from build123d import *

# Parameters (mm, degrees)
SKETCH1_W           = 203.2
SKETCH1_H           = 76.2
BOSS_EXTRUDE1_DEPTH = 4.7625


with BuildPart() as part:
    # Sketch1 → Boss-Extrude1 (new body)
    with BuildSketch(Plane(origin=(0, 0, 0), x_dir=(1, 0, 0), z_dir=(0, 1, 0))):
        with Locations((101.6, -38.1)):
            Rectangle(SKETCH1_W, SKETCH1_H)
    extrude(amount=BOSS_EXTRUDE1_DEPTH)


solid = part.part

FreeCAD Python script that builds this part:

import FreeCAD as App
import Part
import Sketcher

V = App.Vector
Q = App.Units.Quantity


def add_polygon(sketch, points):
    """Adds a closed chain of lines whose ends are joined by coincident constraints."""
    first, n = sketch.GeometryCount, len(points)
    for a, b in zip(points, points[1:] + points[:1]):
        sketch.addGeometry(Part.LineSegment(App.Vector(*a, 0), App.Vector(*b, 0)), False)
    for i in range(n):
        sketch.addConstraint(Sketcher.Constraint("Coincident", first + i, 2, first + (i + 1) % n, 1))

doc = App.newDocument("Part")
params = doc.addObject("Spreadsheet::Sheet", "Params")
for row, (alias, value) in enumerate([
    ("sketch1_width", "8 in"),
    ("sketch1_height", "3 in"),
    ("pad1_length", "0.1875 in"),
], start=1):
    params.set(f"A{row}", alias)
    params.set(f"B{row}", "=" + value)
    params.setAlias(f"B{row}", alias)

body = doc.addObject("PartDesign::Body", "Body")

# Sketch on XZ plane
sketch1 = doc.addObject("Sketcher::SketchObject", "Sketch")
body.addObject(sketch1)
sketch1.AttachmentSupport = (doc.XZ_Plane, [""])
sketch1.MapMode = "FlatFace"
add_polygon(sketch1, [(0, 0), (0, 76.2), (203.2, 76.2), (203.2, 0)])  # lines 0-3
sketch1.addConstraint(Sketcher.Constraint("Vertical", 0))
sketch1.addConstraint(Sketcher.Constraint("Horizontal", 1))
sketch1.addConstraint(Sketcher.Constraint("Vertical", 2))
sketch1.addConstraint(Sketcher.Constraint("Horizontal", 3))
sketch1.addConstraint(Sketcher.Constraint("Coincident", 3, 2, -1, 1))
sketch1.addConstraint(Sketcher.Constraint("DistanceX", 1, 1, 1, 2, Q("8 in")))
sketch1.addConstraint(Sketcher.Constraint("DistanceY", 0, 1, 0, 2, Q("3 in")))
sketch1.setExpression("Constraints[9]", "Params.sketch1_width")
sketch1.setExpression("Constraints[10]", "Params.sketch1_height")
pad1 = doc.addObject("PartDesign::Pad", "Pad")
body.addObject(pad1)
pad1.Profile = sketch1
pad1.setExpression("Length", "Params.pad1_length")
pad1.Reversed = True

doc.recompute()
